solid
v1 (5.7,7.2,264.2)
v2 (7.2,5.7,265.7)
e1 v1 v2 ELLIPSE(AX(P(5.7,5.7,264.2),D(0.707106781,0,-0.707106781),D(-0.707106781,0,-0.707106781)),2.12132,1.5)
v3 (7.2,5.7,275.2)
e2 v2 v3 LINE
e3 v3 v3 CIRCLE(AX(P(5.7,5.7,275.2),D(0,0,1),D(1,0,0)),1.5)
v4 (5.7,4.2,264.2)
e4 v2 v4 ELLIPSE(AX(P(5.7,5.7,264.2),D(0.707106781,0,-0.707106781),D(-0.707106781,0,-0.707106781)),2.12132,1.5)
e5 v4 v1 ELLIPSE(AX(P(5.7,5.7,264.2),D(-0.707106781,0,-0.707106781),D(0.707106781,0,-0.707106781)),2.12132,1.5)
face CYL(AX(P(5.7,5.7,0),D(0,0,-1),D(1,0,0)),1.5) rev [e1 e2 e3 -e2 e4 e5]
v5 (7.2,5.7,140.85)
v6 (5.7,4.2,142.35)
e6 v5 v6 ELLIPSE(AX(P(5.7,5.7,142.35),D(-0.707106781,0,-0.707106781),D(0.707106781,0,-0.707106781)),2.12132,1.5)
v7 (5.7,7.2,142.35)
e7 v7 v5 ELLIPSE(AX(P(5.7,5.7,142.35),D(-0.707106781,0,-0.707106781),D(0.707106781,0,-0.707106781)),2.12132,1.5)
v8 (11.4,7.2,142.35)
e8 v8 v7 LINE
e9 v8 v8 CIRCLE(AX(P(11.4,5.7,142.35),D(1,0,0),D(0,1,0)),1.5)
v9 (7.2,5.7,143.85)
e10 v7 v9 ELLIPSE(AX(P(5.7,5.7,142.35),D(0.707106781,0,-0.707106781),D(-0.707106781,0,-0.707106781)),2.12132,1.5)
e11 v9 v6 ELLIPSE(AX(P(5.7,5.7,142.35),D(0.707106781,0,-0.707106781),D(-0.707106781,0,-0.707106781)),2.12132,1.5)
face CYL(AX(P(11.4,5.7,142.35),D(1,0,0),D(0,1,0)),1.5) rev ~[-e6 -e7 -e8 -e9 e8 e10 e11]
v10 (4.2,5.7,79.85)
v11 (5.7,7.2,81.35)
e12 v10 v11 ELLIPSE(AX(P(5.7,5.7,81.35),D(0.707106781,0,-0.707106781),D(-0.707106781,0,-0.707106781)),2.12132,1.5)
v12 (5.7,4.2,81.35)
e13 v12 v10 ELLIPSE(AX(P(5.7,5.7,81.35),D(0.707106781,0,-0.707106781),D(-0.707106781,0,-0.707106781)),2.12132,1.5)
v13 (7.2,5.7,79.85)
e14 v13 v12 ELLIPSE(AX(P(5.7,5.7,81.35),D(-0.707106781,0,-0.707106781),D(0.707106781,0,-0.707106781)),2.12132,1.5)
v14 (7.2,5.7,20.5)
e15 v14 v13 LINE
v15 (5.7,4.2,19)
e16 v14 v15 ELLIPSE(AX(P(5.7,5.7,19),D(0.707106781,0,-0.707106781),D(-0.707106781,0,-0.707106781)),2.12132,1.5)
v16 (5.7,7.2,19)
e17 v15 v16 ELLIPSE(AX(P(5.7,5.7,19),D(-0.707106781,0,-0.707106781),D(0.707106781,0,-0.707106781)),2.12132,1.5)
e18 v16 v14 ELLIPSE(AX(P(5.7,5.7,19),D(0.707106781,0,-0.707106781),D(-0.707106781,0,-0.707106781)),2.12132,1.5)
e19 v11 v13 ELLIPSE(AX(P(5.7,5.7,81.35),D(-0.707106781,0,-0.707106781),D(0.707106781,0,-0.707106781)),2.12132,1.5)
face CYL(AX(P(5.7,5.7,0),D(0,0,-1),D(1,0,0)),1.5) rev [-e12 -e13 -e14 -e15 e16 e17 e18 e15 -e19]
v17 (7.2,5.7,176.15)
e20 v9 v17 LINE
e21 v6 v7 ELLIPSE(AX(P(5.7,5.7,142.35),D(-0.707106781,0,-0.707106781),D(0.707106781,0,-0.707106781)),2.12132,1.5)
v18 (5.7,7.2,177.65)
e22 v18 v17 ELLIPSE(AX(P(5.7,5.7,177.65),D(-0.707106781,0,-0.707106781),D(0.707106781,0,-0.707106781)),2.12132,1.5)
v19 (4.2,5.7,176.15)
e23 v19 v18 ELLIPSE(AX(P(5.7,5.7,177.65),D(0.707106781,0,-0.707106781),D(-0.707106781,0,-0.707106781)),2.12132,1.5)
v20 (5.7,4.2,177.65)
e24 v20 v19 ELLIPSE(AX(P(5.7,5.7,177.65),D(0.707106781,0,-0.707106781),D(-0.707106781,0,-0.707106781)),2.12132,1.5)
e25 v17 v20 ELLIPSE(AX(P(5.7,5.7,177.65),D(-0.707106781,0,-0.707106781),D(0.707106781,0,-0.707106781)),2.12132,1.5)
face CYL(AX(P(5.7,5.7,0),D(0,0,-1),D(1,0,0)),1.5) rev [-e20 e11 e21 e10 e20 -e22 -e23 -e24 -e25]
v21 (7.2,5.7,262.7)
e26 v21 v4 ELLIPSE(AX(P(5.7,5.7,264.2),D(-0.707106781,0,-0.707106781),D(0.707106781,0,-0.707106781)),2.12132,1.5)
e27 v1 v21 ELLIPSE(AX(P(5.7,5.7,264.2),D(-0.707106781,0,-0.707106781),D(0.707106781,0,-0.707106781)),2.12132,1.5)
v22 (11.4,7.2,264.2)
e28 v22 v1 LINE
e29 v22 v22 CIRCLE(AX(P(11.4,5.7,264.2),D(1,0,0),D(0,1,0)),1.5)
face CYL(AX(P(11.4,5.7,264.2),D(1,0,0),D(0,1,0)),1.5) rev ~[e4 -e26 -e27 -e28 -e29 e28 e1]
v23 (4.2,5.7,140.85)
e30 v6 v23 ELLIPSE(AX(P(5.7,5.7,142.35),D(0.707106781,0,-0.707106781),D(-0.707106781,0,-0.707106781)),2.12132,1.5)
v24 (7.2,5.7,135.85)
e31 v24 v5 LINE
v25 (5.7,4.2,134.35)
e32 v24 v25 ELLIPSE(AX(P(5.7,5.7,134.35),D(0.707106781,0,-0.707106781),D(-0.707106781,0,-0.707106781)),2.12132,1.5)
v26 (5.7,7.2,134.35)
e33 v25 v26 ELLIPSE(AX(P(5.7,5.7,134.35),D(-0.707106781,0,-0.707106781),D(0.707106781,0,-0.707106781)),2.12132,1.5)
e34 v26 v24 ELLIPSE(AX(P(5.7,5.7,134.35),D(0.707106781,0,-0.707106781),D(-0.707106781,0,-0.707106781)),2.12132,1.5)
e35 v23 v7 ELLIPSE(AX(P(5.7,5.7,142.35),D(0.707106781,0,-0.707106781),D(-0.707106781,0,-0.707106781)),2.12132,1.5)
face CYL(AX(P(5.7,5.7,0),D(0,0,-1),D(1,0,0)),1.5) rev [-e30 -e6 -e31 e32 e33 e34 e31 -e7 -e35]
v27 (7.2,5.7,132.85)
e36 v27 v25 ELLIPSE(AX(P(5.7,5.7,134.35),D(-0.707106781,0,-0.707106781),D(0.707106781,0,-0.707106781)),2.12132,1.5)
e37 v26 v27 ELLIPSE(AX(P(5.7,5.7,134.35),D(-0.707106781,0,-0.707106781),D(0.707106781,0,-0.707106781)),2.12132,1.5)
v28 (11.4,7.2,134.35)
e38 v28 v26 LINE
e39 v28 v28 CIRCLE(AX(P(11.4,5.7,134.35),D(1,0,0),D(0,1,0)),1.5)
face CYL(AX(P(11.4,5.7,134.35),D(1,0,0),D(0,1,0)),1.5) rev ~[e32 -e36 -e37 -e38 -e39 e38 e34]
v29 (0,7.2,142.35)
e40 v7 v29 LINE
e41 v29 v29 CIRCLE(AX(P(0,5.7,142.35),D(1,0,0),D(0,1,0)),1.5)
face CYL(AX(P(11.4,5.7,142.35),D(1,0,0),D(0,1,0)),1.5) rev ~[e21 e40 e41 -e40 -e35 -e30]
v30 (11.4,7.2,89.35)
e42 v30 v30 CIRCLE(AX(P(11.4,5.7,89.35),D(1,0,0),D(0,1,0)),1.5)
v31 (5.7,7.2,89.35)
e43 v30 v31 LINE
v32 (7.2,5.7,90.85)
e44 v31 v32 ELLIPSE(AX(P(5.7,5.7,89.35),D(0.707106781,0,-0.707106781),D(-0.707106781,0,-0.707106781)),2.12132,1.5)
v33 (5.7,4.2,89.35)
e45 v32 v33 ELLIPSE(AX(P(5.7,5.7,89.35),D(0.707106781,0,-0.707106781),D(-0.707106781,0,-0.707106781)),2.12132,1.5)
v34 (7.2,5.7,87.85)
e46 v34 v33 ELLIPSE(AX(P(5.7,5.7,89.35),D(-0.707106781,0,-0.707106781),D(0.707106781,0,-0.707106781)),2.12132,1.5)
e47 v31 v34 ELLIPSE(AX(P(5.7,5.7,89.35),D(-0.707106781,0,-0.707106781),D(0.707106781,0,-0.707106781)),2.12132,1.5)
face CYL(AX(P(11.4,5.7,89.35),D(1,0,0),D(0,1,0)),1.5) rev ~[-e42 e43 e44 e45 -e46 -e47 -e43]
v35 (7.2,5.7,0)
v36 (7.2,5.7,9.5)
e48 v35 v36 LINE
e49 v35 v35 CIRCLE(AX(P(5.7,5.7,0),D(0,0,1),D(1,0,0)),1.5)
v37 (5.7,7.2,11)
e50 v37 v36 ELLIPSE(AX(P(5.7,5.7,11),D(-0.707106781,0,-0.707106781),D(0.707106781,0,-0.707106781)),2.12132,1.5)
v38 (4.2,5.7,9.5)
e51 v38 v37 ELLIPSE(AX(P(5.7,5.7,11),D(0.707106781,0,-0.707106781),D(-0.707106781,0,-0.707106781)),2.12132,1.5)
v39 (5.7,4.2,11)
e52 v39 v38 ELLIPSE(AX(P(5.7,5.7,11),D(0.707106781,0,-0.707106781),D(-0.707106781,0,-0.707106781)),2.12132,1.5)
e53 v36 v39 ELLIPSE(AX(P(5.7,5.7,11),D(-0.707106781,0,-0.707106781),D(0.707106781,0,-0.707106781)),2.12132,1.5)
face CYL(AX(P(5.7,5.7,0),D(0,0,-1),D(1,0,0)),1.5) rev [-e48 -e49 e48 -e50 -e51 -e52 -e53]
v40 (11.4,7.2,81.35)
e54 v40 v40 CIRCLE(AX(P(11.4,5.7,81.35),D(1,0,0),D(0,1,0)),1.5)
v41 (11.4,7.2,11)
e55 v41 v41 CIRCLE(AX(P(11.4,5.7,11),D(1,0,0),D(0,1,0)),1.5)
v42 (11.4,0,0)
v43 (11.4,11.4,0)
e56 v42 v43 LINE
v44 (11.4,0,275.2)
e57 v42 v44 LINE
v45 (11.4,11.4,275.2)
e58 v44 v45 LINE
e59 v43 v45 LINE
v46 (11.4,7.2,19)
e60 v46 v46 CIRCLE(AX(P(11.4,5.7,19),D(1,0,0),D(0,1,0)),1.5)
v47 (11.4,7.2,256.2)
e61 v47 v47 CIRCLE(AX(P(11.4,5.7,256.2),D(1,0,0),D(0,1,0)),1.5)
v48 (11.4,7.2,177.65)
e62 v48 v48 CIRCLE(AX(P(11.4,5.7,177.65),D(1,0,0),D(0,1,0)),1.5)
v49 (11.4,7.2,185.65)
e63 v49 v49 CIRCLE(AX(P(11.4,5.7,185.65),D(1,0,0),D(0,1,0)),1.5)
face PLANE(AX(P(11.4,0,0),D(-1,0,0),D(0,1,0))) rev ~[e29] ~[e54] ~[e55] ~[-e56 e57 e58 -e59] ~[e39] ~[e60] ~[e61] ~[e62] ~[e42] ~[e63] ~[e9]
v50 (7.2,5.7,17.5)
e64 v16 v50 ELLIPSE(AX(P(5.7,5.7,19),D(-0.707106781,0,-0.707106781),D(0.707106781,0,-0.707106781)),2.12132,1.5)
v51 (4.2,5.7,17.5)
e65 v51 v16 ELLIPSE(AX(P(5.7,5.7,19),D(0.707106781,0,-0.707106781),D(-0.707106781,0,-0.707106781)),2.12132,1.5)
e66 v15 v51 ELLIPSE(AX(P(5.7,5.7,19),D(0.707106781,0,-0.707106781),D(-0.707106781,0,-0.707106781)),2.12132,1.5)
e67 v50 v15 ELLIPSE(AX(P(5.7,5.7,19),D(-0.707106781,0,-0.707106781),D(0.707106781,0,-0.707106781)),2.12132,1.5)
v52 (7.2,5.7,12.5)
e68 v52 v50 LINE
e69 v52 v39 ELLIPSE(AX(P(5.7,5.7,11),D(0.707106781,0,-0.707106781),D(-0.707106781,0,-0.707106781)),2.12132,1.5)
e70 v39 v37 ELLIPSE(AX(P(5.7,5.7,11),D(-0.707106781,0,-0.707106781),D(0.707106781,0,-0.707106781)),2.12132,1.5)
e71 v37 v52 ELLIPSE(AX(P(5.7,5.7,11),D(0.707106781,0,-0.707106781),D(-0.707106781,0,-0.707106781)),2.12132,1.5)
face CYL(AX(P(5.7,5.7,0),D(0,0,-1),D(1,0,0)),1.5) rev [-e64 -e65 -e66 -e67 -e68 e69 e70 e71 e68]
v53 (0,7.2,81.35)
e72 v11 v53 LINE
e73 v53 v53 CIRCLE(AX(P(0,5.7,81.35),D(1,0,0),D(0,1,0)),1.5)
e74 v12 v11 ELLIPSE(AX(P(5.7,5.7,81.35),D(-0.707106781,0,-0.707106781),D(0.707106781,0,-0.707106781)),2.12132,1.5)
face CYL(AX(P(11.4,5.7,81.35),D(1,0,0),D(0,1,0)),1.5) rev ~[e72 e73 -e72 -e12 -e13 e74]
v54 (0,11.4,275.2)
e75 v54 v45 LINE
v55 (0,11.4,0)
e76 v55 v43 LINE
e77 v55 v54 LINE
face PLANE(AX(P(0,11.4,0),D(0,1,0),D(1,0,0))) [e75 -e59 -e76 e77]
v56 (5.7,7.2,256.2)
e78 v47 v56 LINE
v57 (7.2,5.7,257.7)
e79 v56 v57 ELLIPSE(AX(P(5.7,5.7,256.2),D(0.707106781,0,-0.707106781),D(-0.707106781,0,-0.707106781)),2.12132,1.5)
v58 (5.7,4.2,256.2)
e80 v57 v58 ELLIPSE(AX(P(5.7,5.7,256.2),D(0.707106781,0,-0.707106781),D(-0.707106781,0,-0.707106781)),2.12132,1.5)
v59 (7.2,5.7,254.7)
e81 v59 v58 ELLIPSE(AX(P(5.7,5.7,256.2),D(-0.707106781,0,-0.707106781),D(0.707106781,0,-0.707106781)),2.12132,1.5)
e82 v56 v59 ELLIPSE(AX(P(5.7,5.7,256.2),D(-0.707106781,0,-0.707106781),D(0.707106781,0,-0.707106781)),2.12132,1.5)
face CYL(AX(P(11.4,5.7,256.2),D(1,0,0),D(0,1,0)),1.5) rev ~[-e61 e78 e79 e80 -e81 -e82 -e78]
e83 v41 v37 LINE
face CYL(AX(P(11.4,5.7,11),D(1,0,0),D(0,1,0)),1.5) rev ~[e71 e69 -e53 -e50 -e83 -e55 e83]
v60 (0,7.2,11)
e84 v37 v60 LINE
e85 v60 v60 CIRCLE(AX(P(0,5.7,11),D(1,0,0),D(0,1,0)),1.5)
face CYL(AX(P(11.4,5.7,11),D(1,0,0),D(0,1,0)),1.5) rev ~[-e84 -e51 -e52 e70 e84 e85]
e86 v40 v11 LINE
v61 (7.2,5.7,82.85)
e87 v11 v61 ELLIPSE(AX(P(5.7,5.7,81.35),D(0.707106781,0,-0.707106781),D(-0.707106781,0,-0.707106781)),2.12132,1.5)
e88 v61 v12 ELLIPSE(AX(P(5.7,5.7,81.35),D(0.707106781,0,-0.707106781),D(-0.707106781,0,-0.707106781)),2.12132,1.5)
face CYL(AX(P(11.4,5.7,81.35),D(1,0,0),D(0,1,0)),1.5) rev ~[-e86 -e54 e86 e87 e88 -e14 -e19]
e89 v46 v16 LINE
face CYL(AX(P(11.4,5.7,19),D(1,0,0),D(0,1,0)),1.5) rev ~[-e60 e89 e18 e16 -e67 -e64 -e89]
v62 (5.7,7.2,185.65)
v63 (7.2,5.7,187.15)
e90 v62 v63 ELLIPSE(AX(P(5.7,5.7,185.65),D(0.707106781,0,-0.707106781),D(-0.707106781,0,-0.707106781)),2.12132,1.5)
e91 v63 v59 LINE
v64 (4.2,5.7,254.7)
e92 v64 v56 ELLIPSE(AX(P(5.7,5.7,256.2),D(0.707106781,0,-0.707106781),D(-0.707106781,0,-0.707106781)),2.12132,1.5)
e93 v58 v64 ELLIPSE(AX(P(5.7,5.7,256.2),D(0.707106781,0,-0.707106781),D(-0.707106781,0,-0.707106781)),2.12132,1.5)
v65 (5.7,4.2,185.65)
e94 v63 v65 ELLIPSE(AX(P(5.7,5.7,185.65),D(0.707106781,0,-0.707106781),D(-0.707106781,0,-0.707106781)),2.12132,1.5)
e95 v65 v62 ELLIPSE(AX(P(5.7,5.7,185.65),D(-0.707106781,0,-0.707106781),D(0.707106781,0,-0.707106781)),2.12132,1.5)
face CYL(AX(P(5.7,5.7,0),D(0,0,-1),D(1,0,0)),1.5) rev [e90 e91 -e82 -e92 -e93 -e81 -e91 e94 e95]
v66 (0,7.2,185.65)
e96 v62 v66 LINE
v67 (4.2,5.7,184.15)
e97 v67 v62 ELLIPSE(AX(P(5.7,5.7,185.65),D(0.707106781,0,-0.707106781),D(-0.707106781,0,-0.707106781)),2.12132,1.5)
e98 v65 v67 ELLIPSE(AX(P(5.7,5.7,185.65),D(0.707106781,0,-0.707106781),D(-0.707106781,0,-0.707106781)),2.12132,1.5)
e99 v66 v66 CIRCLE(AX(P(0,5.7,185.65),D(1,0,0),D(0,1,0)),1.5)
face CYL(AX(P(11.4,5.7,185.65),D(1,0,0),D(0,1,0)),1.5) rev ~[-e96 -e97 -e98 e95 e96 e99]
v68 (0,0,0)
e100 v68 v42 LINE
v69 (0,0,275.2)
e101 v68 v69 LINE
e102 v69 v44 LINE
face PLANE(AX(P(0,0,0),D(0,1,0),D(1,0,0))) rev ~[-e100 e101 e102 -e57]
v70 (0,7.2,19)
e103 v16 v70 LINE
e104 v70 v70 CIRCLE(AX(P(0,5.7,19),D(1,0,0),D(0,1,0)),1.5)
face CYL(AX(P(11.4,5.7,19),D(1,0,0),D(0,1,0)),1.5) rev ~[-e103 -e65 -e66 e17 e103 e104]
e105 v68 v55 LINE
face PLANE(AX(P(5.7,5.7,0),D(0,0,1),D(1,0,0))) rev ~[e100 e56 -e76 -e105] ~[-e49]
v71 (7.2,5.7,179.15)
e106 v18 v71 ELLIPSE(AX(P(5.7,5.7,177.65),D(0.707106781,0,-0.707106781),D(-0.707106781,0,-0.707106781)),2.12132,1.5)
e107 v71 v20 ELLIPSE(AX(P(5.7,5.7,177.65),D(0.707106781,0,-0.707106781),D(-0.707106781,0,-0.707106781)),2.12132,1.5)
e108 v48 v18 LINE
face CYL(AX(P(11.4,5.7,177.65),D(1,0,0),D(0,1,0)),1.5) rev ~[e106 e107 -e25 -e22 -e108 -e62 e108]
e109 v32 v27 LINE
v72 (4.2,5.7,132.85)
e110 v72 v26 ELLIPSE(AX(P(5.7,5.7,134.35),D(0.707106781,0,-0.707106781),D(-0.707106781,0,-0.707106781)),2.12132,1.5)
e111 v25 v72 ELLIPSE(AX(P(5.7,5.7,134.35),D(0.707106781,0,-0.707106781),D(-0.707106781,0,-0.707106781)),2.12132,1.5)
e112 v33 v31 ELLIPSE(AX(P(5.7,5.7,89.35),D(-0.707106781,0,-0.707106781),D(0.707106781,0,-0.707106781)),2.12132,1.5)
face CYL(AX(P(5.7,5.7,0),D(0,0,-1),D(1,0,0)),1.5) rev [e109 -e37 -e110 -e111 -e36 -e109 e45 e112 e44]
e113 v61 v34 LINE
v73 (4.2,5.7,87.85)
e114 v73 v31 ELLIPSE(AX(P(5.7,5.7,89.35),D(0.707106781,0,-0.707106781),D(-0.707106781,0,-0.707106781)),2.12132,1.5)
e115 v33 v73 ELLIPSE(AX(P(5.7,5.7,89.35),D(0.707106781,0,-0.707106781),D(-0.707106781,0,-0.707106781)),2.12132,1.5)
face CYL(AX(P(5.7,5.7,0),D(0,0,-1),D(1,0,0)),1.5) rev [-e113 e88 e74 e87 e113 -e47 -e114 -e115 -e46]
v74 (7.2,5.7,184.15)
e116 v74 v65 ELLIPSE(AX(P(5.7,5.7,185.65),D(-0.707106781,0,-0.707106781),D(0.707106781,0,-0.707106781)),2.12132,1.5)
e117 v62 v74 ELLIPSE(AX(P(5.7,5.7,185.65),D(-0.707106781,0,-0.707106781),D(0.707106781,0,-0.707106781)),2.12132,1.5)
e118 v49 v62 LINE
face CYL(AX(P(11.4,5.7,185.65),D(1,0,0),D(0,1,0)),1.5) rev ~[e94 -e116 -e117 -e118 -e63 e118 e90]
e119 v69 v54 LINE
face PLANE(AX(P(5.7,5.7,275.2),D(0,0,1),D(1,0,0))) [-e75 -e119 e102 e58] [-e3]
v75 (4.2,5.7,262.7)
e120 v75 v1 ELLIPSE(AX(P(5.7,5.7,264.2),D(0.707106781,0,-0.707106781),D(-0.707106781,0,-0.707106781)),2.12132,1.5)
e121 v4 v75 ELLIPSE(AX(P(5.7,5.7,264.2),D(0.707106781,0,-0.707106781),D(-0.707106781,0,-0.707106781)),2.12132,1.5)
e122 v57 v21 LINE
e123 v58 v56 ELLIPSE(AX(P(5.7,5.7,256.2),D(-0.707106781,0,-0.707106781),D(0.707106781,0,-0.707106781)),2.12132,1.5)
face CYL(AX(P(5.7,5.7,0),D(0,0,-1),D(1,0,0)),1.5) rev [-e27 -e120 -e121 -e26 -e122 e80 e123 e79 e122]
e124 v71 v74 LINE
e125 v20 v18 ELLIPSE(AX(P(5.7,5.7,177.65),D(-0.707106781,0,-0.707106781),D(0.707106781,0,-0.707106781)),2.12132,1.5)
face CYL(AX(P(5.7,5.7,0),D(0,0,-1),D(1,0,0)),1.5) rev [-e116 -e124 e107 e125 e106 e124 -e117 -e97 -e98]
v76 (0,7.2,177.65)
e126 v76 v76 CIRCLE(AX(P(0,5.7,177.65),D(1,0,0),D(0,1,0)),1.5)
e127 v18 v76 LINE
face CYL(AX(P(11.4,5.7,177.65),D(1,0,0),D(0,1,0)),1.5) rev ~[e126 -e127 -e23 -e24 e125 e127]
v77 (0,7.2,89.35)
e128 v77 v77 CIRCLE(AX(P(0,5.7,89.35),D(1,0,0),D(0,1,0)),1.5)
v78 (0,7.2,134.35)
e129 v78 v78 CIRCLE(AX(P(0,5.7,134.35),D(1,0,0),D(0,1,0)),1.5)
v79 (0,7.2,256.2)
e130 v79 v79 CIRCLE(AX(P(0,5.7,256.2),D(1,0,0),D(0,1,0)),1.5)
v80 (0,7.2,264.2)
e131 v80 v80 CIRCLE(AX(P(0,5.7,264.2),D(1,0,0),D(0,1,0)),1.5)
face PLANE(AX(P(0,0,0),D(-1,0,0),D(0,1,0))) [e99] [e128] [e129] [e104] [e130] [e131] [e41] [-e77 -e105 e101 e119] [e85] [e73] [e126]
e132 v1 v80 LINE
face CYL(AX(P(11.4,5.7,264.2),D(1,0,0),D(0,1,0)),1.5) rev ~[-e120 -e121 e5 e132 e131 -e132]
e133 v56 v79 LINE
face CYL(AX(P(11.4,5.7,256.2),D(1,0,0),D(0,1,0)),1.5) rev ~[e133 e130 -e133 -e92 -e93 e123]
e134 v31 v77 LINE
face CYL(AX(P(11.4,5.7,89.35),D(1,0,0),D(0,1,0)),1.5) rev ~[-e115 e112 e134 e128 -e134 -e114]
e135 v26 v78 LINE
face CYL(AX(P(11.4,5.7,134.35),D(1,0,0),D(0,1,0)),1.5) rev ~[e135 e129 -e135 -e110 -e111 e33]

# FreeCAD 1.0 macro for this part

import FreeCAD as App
import Part
import Sketcher
Q = App.Units.Quantity


def add_polygon(sketch, points):
    """Adds a closed chain of lines whose ends are joined by coincident constraints."""
    first, n = sketch.GeometryCount, len(points)
    for a, b in zip(points, points[1:] + points[:1]):
        sketch.addGeometry(Part.LineSegment(App.Vector(*a, 0), App.Vector(*b, 0)), False)
    for i in range(n):
        sketch.addConstraint(Sketcher.Constraint("Coincident", first + i, 2, first + (i + 1) % n, 1))

doc = App.newDocument("Part")
body = doc.addObject("PartDesign::Body", "Body")

sketch1 = doc.addObject("Sketcher::SketchObject", "Sketch")
body.addObject(sketch1)
sketch1.AttachmentSupport = (doc.XY_Plane, [""])
sketch1.MapMode = "FlatFace"
add_polygon(sketch1, [(0, 11.4), (0, 0), (11.4, 0), (11.4, 11.4)])
sketch1.addGeometry(Part.Circle(App.Vector(5.7, 5.7, 0), App.Vector(0, 0, 1), 1.5), False)
sketch1.addConstraint(Sketcher.Constraint("Vertical", 0))
sketch1.addConstraint(Sketcher.Constraint("Horizontal", 1))
sketch1.addConstraint(Sketcher.Constraint("Vertical", 2))
sketch1.addConstraint(Sketcher.Constraint("Horizontal", 3))
sketch1.addConstraint(Sketcher.Constraint("Coincident", 0, 2, -1, 1))
sketch1.addConstraint(Sketcher.Constraint("Equal", 3, 0))
sketch1.addConstraint(Sketcher.Constraint("Diameter", 4, Q("3 mm")))
sketch1.addConstraint(Sketcher.Constraint("DistanceX", 1, 1, 1, 2, Q("11.4 mm")))
sketch1.addConstraint(Sketcher.Constraint("DistanceX", -1, 1, 4, 3, Q("5.7 mm")))
sketch1.addConstraint(Sketcher.Constraint("DistanceY", -1, 1, 4, 3, Q("5.7 mm")))
pad1 = doc.addObject("PartDesign::Pad", "Pad")
body.addObject(pad1)
pad1.Profile = sketch1
pad1.Length = 275.2

sketch2 = doc.addObject("Sketcher::SketchObject", "Sketch001")
body.addObject(sketch2)
sketch2.AttachmentSupport = (doc.YZ_Plane, [""])
sketch2.MapMode = "FlatFace"
sketch2.AttachmentOffset = App.Placement(App.Vector(0, 0, 11.4), App.Rotation())
sketch2.addGeometry(Part.Circle(App.Vector(5.7, 142.3, 0), App.Vector(0, 0, 1), 1.5), False)
sketch2.addGeometry(Part.Circle(App.Vector(5.7, 134.3, 0), App.Vector(0, 0, 1), 1.5), False)
sketch2.addGeometry(Part.Circle(App.Vector(5.7, 19, 0), App.Vector(0, 0, 1), 1.5), False)
sketch2.addGeometry(Part.Circle(App.Vector(5.7, 11, 0), App.Vector(0, 0, 1), 1.5), False)
sketch2.addGeometry(Part.Circle(App.Vector(5.7, 89.3, 0), App.Vector(0, 0, 1), 1.5), False)
sketch2.addGeometry(Part.Circle(App.Vector(5.7, 81.3, 0), App.Vector(0, 0, 1), 1.5), False)
sketch2.addGeometry(Part.Circle(App.Vector(5.7, 185.7, 0), App.Vector(0, 0, 1), 1.5), False)
sketch2.addGeometry(Part.Circle(App.Vector(5.7, 177.7, 0), App.Vector(0, 0, 1), 1.5), False)
sketch2.addGeometry(Part.Circle(App.Vector(5.7, 264.2, 0), App.Vector(0, 0, 1), 1.5), False)
sketch2.addGeometry(Part.Circle(App.Vector(5.7, 256.2, 0), App.Vector(0, 0, 1), 1.5), False)
sketch2.addConstraint(Sketcher.Constraint("Equal", 0, 1))
sketch2.addConstraint(Sketcher.Constraint("Equal", 1, 2))
sketch2.addConstraint(Sketcher.Constraint("Equal", 2, 3))
sketch2.addConstraint(Sketcher.Constraint("Equal", 3, 4))
sketch2.addConstraint(Sketcher.Constraint("Equal", 4, 5))
sketch2.addConstraint(Sketcher.Constraint("Equal", 5, 6))
sketch2.addConstraint(Sketcher.Constraint("Equal", 6, 7))
sketch2.addConstraint(Sketcher.Constraint("Equal", 7, 8))
sketch2.addConstraint(Sketcher.Constraint("Equal", 8, 9))
sketch2.addConstraint(Sketcher.Constraint("Vertical", 0, 3, 1, 3))
sketch2.addConstraint(Sketcher.Constraint("Vertical", 1, 3, 2, 3))
sketch2.addConstraint(Sketcher.Constraint("Vertical", 2, 3, 3, 3))
sketch2.addConstraint(Sketcher.Constraint("Vertical", 3, 3, 4, 3))
sketch2.addConstraint(Sketcher.Constraint("Vertical", 4, 3, 5, 3))
sketch2.addConstraint(Sketcher.Constraint("Vertical", 5, 3, 6, 3))
sketch2.addConstraint(Sketcher.Constraint("Vertical", 6, 3, 7, 3))
sketch2.addConstraint(Sketcher.Constraint("Vertical", 7, 3, 8, 3))
sketch2.addConstraint(Sketcher.Constraint("Vertical", 8, 3, 9, 3))
sketch2.addConstraint(Sketcher.Constraint("Diameter", 0, Q("3 mm")))
sketch2.addConstraint(Sketcher.Constraint("DistanceY", -1, 1, 2, 3, Q("19 mm")))
sketch2.addConstraint(Sketcher.Constraint("DistanceY", -1, 1, 3, 3, Q("11 mm")))
sketch2.addConstraint(Sketcher.Constraint("DistanceY", 1, 3, 0, 3, Q("8 mm")))
sketch2.addConstraint(Sketcher.Constraint("DistanceY", 4, 3, 1, 3, Q("45 mm")))
sketch2.addConstraint(Sketcher.Constraint("DistanceY", 5, 3, 4, 3, Q("8 mm")))
sketch2.addConstraint(Sketcher.Constraint("DistanceY", 7, 3, 6, 3, Q("8 mm")))
sketch2.addConstraint(Sketcher.Constraint("DistanceY", 9, 3, 8, 3, Q("8 mm")))
sketch2.addConstraint(Sketcher.Constraint("DistanceX", -1, 1, 0, 3, Q("5.7 mm")))
sketch2.addConstraint(Sketcher.Constraint("DistanceY", -1, 1, 8, 3, Q("264.2 mm")))
sketch2.addConstraint(Sketcher.Constraint("DistanceY", 0, 3, 6, 3, Q("43.3 mm")))
sketch2.addConstraint(Sketcher.Constraint("DistanceY", -1, 1, 0, 3, Q("142.35 mm")))
pocket1 = doc.addObject("PartDesign::Pocket", "Pocket")
body.addObject(pocket1)
pocket1.Profile = sketch2
pocket1.Type = "ThroughAll"

doc.recompute()
